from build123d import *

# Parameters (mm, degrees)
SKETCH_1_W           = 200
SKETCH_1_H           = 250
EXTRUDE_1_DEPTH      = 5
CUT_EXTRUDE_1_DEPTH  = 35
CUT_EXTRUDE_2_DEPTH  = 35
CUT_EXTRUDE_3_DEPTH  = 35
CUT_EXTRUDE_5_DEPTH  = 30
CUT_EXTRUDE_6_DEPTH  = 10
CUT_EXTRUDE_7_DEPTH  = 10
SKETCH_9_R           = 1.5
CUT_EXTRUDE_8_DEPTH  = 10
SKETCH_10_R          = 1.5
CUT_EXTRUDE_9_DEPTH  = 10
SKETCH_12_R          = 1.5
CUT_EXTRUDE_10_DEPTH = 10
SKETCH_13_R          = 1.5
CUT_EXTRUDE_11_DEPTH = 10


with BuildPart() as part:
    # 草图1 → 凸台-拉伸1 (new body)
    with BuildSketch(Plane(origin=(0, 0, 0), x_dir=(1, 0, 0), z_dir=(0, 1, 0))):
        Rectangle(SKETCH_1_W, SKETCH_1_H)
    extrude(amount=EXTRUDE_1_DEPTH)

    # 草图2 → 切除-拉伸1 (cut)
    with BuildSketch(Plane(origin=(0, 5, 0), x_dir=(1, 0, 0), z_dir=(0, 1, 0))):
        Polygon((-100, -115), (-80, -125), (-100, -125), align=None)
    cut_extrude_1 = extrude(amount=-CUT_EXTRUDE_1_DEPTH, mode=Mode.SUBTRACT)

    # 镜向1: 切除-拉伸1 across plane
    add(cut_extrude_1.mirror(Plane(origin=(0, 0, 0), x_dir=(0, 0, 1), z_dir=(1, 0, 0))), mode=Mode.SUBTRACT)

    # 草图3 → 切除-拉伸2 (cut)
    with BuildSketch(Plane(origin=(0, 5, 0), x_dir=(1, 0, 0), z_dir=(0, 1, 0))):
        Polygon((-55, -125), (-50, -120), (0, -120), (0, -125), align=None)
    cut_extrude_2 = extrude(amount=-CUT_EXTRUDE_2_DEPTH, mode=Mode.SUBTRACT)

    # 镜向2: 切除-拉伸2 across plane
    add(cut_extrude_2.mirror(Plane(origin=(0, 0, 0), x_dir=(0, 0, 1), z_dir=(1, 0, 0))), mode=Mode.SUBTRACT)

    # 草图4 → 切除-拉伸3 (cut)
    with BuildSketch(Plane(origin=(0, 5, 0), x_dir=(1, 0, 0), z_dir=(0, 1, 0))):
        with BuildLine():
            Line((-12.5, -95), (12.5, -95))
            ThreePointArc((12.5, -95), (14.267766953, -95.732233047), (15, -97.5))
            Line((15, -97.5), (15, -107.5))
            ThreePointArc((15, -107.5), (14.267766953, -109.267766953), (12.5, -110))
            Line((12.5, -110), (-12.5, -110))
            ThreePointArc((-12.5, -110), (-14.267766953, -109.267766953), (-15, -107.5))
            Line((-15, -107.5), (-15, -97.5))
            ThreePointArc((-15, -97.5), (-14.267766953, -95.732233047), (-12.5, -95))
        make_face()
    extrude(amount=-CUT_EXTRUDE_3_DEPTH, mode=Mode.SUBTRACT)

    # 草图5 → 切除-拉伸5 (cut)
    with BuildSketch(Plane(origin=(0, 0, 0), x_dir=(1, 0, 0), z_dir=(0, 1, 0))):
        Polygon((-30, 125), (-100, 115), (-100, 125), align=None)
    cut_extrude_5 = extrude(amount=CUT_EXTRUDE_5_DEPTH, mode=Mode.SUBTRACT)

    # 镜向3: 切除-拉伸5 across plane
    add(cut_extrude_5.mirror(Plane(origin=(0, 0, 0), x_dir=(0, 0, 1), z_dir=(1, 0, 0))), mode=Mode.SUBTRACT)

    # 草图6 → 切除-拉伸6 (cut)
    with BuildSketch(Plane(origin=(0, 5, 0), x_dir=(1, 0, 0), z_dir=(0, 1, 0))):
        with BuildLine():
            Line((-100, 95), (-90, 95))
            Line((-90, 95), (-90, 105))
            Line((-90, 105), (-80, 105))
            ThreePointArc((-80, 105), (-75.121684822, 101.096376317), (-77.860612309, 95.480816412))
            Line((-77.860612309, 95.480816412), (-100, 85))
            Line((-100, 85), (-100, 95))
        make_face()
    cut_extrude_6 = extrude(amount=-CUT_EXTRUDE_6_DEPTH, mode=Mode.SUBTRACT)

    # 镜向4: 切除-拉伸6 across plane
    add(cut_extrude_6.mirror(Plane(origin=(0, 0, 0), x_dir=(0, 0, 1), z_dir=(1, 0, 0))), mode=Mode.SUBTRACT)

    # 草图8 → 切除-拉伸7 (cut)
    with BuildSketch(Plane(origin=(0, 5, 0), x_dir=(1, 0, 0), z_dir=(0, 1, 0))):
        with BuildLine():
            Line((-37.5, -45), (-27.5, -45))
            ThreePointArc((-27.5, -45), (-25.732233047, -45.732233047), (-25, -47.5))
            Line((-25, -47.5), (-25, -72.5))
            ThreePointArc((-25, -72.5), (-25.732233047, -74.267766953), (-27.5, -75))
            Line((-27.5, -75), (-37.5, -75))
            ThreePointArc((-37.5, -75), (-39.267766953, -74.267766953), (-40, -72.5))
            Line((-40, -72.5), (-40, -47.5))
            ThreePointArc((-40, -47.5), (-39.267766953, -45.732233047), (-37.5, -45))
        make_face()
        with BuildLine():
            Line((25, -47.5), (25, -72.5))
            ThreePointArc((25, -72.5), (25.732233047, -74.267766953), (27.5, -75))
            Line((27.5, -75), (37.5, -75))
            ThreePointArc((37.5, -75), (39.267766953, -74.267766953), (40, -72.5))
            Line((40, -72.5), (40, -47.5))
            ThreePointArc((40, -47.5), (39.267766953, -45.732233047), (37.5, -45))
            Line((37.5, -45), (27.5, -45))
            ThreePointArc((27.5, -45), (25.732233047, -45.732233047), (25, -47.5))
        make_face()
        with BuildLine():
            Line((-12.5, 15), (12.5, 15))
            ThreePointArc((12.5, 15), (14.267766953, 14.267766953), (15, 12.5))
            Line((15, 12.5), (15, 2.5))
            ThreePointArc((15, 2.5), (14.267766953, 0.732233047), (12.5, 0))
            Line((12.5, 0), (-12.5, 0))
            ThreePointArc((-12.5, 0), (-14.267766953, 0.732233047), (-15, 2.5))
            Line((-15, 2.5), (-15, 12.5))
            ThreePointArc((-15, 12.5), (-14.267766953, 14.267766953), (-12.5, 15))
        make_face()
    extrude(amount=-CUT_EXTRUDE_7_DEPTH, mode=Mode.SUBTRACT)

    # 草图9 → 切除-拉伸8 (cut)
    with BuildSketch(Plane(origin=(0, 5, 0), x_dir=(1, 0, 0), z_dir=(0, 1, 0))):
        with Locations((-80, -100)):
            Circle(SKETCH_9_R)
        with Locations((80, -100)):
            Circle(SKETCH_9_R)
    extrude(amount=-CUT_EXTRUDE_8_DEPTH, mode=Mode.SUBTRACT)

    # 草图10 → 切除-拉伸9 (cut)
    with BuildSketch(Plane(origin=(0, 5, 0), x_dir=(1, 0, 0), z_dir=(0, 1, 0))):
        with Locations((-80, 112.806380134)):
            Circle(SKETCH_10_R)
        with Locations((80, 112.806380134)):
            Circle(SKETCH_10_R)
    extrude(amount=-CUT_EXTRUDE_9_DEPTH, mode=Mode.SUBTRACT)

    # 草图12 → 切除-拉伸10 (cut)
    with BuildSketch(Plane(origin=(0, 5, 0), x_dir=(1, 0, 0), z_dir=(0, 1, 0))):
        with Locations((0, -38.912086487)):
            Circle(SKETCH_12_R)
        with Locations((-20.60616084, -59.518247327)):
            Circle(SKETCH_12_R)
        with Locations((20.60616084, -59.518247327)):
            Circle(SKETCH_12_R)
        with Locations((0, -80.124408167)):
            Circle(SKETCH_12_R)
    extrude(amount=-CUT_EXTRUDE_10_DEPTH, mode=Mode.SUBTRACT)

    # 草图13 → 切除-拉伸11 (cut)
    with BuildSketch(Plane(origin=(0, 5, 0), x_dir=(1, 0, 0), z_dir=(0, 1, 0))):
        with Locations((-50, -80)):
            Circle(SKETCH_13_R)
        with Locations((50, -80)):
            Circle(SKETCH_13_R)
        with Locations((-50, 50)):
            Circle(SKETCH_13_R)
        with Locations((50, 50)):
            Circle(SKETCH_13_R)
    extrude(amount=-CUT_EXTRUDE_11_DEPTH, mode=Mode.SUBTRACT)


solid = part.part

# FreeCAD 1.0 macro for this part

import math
import FreeCAD as App
import Part
import Sketcher
from FreeCAD import Vector

doc = App.newDocument("Part")
params = doc.addObject("Spreadsheet::Sheet", "Params")
for row, (alias, value) in enumerate([
    ("sketch1_width", "200 mm"),
    ("sketch1_height", "250 mm"),
    ("pad1_length", "5 mm"),
    ("sketch2_width", "20 mm"),
    ("sketch2_height", "10 mm"),
    ("pocket1_length", "35 mm"),
    ("sketch3_width", "55 mm"),
    ("sketch3_width2", "50 mm"),
    ("sketch3_height", "5 mm"),
    ("pocket2_length", "35 mm"),
    ("sketch4_radius", "2.5 mm"),
    ("sketch4_width", "25 mm"),
    ("sketch4_height", "10 mm"),
    ("pocket3_length", "35 mm"),
    ("sketch5_width", "70 mm"),
    ("sketch5_height", "10 mm"),
    ("pocket4_length", "30 mm"),
    ("sketch6_radius", "5 mm"),
    ("sketch6_width", "10 mm"),
    ("pocket5_length", "10 mm"),
    ("sketch7_radius", "2.5 mm"),
    ("sketch7_width", "10 mm"),
    ("sketch7_width2", "25 mm"),
    ("pocket6_length", "10 mm"),
    ("sketch8_diameter", "3 mm"),
    ("pocket7_length", "10 mm"),
    ("sketch9_diameter", "3 mm"),
    ("pocket8_length", "10 mm"),
    ("sketch10_diameter", "3 mm"),
    ("pocket9_length", "10 mm"),
    ("sketch11_diameter", "3 mm"),
    ("pocket10_length", "10 mm"),
], start=1):
    params.set(f"A{row}", alias)
    params.set(f"B{row}", "=" + value)
    params.setAlias(f"B{row}", alias)

body = doc.addObject("PartDesign::Body", "Body")

sketch1 = body.newObject("Sketcher::SketchObject", "Sketch")
sketch1.AttachmentSupport = (doc.getObject("XZ_Plane"), [""])
sketch1.MapMode = "FlatFace"
sketch1.addGeometry(Part.LineSegment(Vector(-100, -125, 0), Vector(-100, 125, 0)), False)
sketch1.addGeometry(Part.LineSegment(Vector(-100, 125, 0), Vector(100, 125, 0)), False)
sketch1.addGeometry(Part.LineSegment(Vector(100, 125, 0), Vector(100, -125, 0)), False)
sketch1.addGeometry(Part.LineSegment(Vector(100, -125, 0), Vector(-100, -125, 0)), False)
sketch1.addConstraint(Sketcher.Constraint("Coincident", 0, 2, 1, 1))
sketch1.addConstraint(Sketcher.Constraint("Coincident", 1, 2, 2, 1))
sketch1.addConstraint(Sketcher.Constraint("Coincident", 2, 2, 3, 1))
sketch1.addConstraint(Sketcher.Constraint("Coincident", 3, 2, 0, 1))
sketch1.addConstraint(Sketcher.Constraint("Vertical", 0))
sketch1.addConstraint(Sketcher.Constraint("Horizontal", 1))
sketch1.addConstraint(Sketcher.Constraint("Vertical", 2))
sketch1.addConstraint(Sketcher.Constraint("Horizontal", 3))
sketch1.addConstraint(Sketcher.Constraint("Symmetric", 0, 2, 2, 2, -1, 1))
sketch1.addConstraint(Sketcher.Constraint("DistanceX", 1, 1, 1, 2, 200.0))
sketch1.addConstraint(Sketcher.Constraint("DistanceY", 0, 1, 0, 2, 250.0))
sketch1.setExpression("Constraints[9]", "Params.sketch1_width")
sketch1.setExpression("Constraints[10]", "Params.sketch1_height")
pad1 = body.newObject("PartDesign::Pad", "Pad")
pad1.Profile = sketch1
pad1.setExpression("Length", "Params.pad1_length")
pad1.Reversed = True

sketch2 = body.newObject("Sketcher::SketchObject", "Sketch001")
sketch2.AttachmentSupport = (doc.getObject("XZ_Plane"), [""])
sketch2.MapMode = "FlatFace"
sketch2.AttachmentOffset = App.Placement(Vector(0, 0, -5), App.Rotation())
sketch2.addGeometry(Part.LineSegment(Vector(-80, 125, 0), Vector(-100, 115, 0)), False)
sketch2.addGeometry(Part.LineSegment(Vector(-100, 115, 0), Vector(-100, 125, 0)), False)
sketch2.addGeometry(Part.LineSegment(Vector(-100, 125, 0), Vector(-80, 125, 0)), False)
sketch2.addConstraint(Sketcher.Constraint("Coincident", 0, 2, 1, 1))
sketch2.addConstraint(Sketcher.Constraint("Coincident", 1, 2, 2, 1))
sketch2.addConstraint(Sketcher.Constraint("Coincident", 2, 2, 0, 1))
sketch2.addConstraint(Sketcher.Constraint("Vertical", 1))
sketch2.addConstraint(Sketcher.Constraint("Horizontal", 2))
sketch2.addConstraint(Sketcher.Constraint("DistanceX", 2, 1, 2, 2, 20.0))
sketch2.addConstraint(Sketcher.Constraint("DistanceY", 1, 1, 1, 2, 10.0))
sketch2.addConstraint(Sketcher.Constraint("DistanceX", 0, 2, -1, 1, 100.0))
sketch2.addConstraint(Sketcher.Constraint("DistanceY", -1, 1, 0, 2, 115.0))
sketch2.setExpression("Constraints[5]", "Params.sketch2_width")
sketch2.setExpression("Constraints[6]", "Params.sketch2_height")
pocket1 = body.newObject("PartDesign::Pocket", "Pocket")
pocket1.Profile = sketch2
pocket1.setExpression("Length", "Params.pocket1_length")
pocket1.Reversed = True
doc.recompute()

mirrored = body.newObject("PartDesign::Mirrored", "Mirrored")
mirrored.Originals = [pocket1]
mirrored.MirrorPlane = (doc.getObject("YZ_Plane"), [""])
body.Tip = mirrored

sketch3 = body.newObject("Sketcher::SketchObject", "Sketch002")
sketch3.AttachmentSupport = (doc.getObject("XZ_Plane"), [""])
sketch3.MapMode = "FlatFace"
sketch3.AttachmentOffset = App.Placement(Vector(0, 0, -5), App.Rotation())
sketch3.addGeometry(Part.LineSegment(Vector(-50, 120, 0), Vector(-55, 125, 0)), False)
sketch3.addGeometry(Part.LineSegment(Vector(-55, 125, 0), Vector(0, 125, 0)), False)
sketch3.addGeometry(Part.LineSegment(Vector(0, 125, 0), Vector(0, 120, 0)), False)
sketch3.addGeometry(Part.LineSegment(Vector(0, 120, 0), Vector(-50, 120, 0)), False)
sketch3.addConstraint(Sketcher.Constraint("Coincident", 0, 2, 1, 1))
sketch3.addConstraint(Sketcher.Constraint("Coincident", 1, 2, 2, 1))
sketch3.addConstraint(Sketcher.Constraint("Coincident", 2, 2, 3, 1))
sketch3.addConstraint(Sketcher.Constraint("Coincident", 3, 2, 0, 1))
sketch3.addConstraint(Sketcher.Constraint("Horizontal", 1))
sketch3.addConstraint(Sketcher.Constraint("Vertical", 2))
sketch3.addConstraint(Sketcher.Constraint("Horizontal", 3))
sketch3.addConstraint(Sketcher.Constraint("PointOnObject", 1, 2, -2))
sketch3.addConstraint(Sketcher.Constraint("DistanceX", 1, 1, 1, 2, 55.0))
sketch3.addConstraint(Sketcher.Constraint("DistanceX", 3, 2, 3, 1, 50.0))
sketch3.addConstraint(Sketcher.Constraint("DistanceY", 2, 2, 2, 1, 5.0))
sketch3.addConstraint(Sketcher.Constraint("DistanceY", -1, 1, 0, 2, 125.0))
sketch3.setExpression("Constraints[8]", "Params.sketch3_width")
sketch3.setExpression("Constraints[9]", "Params.sketch3_width2")
sketch3.setExpression("Constraints[10]", "Params.sketch3_height")
pocket2 = body.newObject("PartDesign::Pocket", "Pocket001")
pocket2.Profile = sketch3
pocket2.setExpression("Length", "Params.pocket2_length")
pocket2.Reversed = True
doc.recompute()

mirrored2 = body.newObject("PartDesign::Mirrored", "Mirrored001")
mirrored2.Originals = [pocket2]
mirrored2.MirrorPlane = (doc.getObject("YZ_Plane"), [""])
body.Tip = mirrored2

sketch4 = body.newObject("Sketcher::SketchObject", "Sketch003")
sketch4.AttachmentSupport = (doc.getObject("XZ_Plane"), [""])
sketch4.MapMode = "FlatFace"
sketch4.AttachmentOffset = App.Placement(Vector(0, 0, -5), App.Rotation())
sketch4.addGeometry(Part.LineSegment(Vector(12.5, 95, 0), Vector(-12.5, 95, 0)), False)
sketch4.addGeometry(Part.ArcOfCircle(Part.Circle(Vector(-12.5, 97.5, 0), Vector(0, 0, 1), 2.5), math.radians(180), math.radians(270)), False)
sketch4.addGeometry(Part.LineSegment(Vector(-15, 97.5, 0), Vector(-15, 107.5, 0)), False)
sketch4.addGeometry(Part.ArcOfCircle(Part.Circle(Vector(-12.5, 107.5, 0), Vector(0, 0, 1), 2.5), math.radians(90), math.radians(180)), False)
sketch4.addGeometry(Part.LineSegment(Vector(-12.5, 110, 0), Vector(12.5, 110, 0)), False)
sketch4.addGeometry(Part.ArcOfCircle(Part.Circle(Vector(12.5, 107.5, 0), Vector(0, 0, 1), 2.5), math.radians(0), math.radians(90)), False)
sketch4.addGeometry(Part.LineSegment(Vector(15, 107.5, 0), Vector(15, 97.5, 0)), False)
sketch4.addGeometry(Part.ArcOfCircle(Part.Circle(Vector(12.5, 97.5, 0), Vector(0, 0, 1), 2.5), math.radians(-90), math.radians(0)), False)
sketch4.addConstraint(Sketcher.Constraint("Tangent", 0, 2, 1, 2))
sketch4.addConstraint(Sketcher.Constraint("Tangent", 1, 1, 2, 1))
sketch4.addConstraint(Sketcher.Constraint("Tangent", 2, 2, 3, 2))
sketch4.addConstraint(Sketcher.Constraint("Tangent", 3, 1, 4, 1))
sketch4.addConstraint(Sketcher.Constraint("Tangent", 4, 2, 5, 2))
sketch4.addConstraint(Sketcher.Constraint("Tangent", 5, 1, 6, 1))
sketch4.addConstraint(Sketcher.Constraint("Tangent", 6, 2, 7, 2))
sketch4.addConstraint(Sketcher.Constraint("Tangent", 7, 1, 0, 1))
sketch4.addConstraint(Sketcher.Constraint("Horizontal", 0))
sketch4.addConstraint(Sketcher.Constraint("Vertical", 2))
sketch4.addConstraint(Sketcher.Constraint("Horizontal", 4))
sketch4.addConstraint(Sketcher.Constraint("Vertical", 6))
sketch4.addConstraint(Sketcher.Constraint("Equal", 1, 3))
sketch4.addConstraint(Sketcher.Constraint("Equal", 3, 5))
sketch4.addConstraint(Sketcher.Constraint("Equal", 5, 7))
sketch4.addConstraint(Sketcher.Constraint("Radius", 1, 2.5))
sketch4.addConstraint(Sketcher.Constraint("DistanceX", 0, 2, 0, 1, 25.0))
sketch4.addConstraint(Sketcher.Constraint("DistanceY", 2, 1, 2, 2, 10.0))
sketch4.addConstraint(Sketcher.Constraint("DistanceY", -1, 1, 0, 2, 95.0))
sketch4.addConstraint(Sketcher.Constraint("DistanceX", 1, 1, -1, 1, 15.0))
sketch4.setExpression("Constraints[15]", "Params.sketch4_radius")
sketch4.setExpression("Constraints[16]", "Params.sketch4_width")
sketch4.setExpression("Constraints[17]", "Params.sketch4_height")
pocket3 = body.newObject("PartDesign::Pocket", "Pocket002")
pocket3.Profile = sketch4
pocket3.setExpression("Length", "Params.pocket3_length")
pocket3.Reversed = True

sketch5 = body.newObject("Sketcher::SketchObject", "Sketch004")
sketch5.AttachmentSupport = (doc.getObject("XZ_Plane"), [""])
sketch5.MapMode = "FlatFace"
sketch5.addGeometry(Part.LineSegment(Vector(-100, -115, 0), Vector(-30, -125, 0)), False)
sketch5.addGeometry(Part.LineSegment(Vector(-30, -125, 0), Vector(-100, -125, 0)), False)
sketch5.addGeometry(Part.LineSegment(Vector(-100, -125, 0), Vector(-100, -115, 0)), False)
sketch5.addConstraint(Sketcher.Constraint("Coincident", 0, 2, 1, 1))
sketch5.addConstraint(Sketcher.Constraint("Coincident", 1, 2, 2, 1))
sketch5.addConstraint(Sketcher.Constraint("Coincident", 2, 2, 0, 1))
sketch5.addConstraint(Sketcher.Constraint("Horizontal", 1))
sketch5.addConstraint(Sketcher.Constraint("Vertical", 2))
sketch5.addConstraint(Sketcher.Constraint("DistanceX", 1, 2, 1, 1, 70.0))
sketch5.addConstraint(Sketcher.Constraint("DistanceY", 2, 1, 2, 2, 10.0))
sketch5.addConstraint(Sketcher.Constraint("DistanceX", 0, 2, -1, 1, 30.0))
sketch5.addConstraint(Sketcher.Constraint("DistanceY", 0, 2, -1, 1, 125.0))
sketch5.setExpression("Constraints[5]", "Params.sketch5_width")
sketch5.setExpression("Constraints[6]", "Params.sketch5_height")
pocket4 = body.newObject("PartDesign::Pocket", "Pocket003")
pocket4.Profile = sketch5
pocket4.setExpression("Length", "Params.pocket4_length")
doc.recompute()

mirrored3 = body.newObject("PartDesign::Mirrored", "Mirrored002")
mirrored3.Originals = [pocket4]
mirrored3.MirrorPlane = (doc.getObject("YZ_Plane"), [""])
body.Tip = mirrored3

sketch6 = body.newObject("Sketcher::SketchObject", "Sketch005")
sketch6.AttachmentSupport = (doc.getObject("XZ_Plane"), [""])
sketch6.MapMode = "FlatFace"
sketch6.AttachmentOffset = App.Placement(Vector(0, 0, -5), App.Rotation())
sketch6.addGeometry(Part.LineSegment(Vector(-90, -95, 0), Vector(-100, -95, 0)), False)
sketch6.addGeometry(Part.LineSegment(Vector(-100, -95, 0), Vector(-100, -85, 0)), False)
sketch6.addGeometry(Part.LineSegment(Vector(-100, -85, 0), Vector(-78, -95, 0)), False)
sketch6.addGeometry(Part.ArcOfCircle(Part.Circle(Vector(-80, -100, 0), Vector(0, 0, 1), 5), math.radians(-90), math.radians(65)), False)
sketch6.addGeometry(Part.LineSegment(Vector(-80, -105, 0), Vector(-90, -105, 0)), False)
sketch6.addGeometry(Part.LineSegment(Vector(-90, -105, 0), Vector(-90, -95, 0)), False)
sketch6.addConstraint(Sketcher.Constraint("Coincident", 0, 2, 1, 1))
sketch6.addConstraint(Sketcher.Constraint("Coincident", 1, 2, 2, 1))
sketch6.addConstraint(Sketcher.Constraint("Tangent", 2, 2, 3, 2))
sketch6.addConstraint(Sketcher.Constraint("Tangent", 3, 1, 4, 1))
sketch6.addConstraint(Sketcher.Constraint("Coincident", 4, 2, 5, 1))
sketch6.addConstraint(Sketcher.Constraint("Coincident", 5, 2, 0, 1))
sketch6.addConstraint(Sketcher.Constraint("Horizontal", 0))
sketch6.addConstraint(Sketcher.Constraint("Vertical", 1))
sketch6.addConstraint(Sketcher.Constraint("Horizontal", 4))
sketch6.addConstraint(Sketcher.Constraint("Vertical", 5))
sketch6.addConstraint(Sketcher.Constraint("Equal", 0, 4))
sketch6.addConstraint(Sketcher.Constraint("Equal", 4, 1))
sketch6.addConstraint(Sketcher.Constraint("Equal", 1, 5))
sketch6.addConstraint(Sketcher.Constraint("Radius", 3, 5.0))
sketch6.addConstraint(Sketcher.Constraint("DistanceX", 0, 2, 0, 1, 10.0))
sketch6.addConstraint(Sketcher.Constraint("DistanceX", 3, 3, -1, 1, 80.0))
sketch6.addConstraint(Sketcher.Constraint("DistanceY", 3, 3, -1, 1, 100.0))
sketch6.setExpression("Constraints[13]", "Params.sketch6_radius")
sketch6.setExpression("Constraints[14]", "Params.sketch6_width")
pocket5 = body.newObject("PartDesign::Pocket", "Pocket004")
pocket5.Profile = sketch6
pocket5.setExpression("Length", "Params.pocket5_length")
pocket5.Reversed = True
doc.recompute()

mirrored4 = body.newObject("PartDesign::Mirrored", "Mirrored003")
mirrored4.Originals = [pocket5]
mirrored4.MirrorPlane = (doc.getObject("YZ_Plane"), [""])
body.Tip = mirrored4

sketch7 = body.newObject("Sketcher::SketchObject", "Sketch006")
sketch7.AttachmentSupport = (doc.getObject("XZ_Plane"), [""])
sketch7.MapMode = "FlatFace"
sketch7.AttachmentOffset = App.Placement(Vector(0, 0, -5), App.Rotation())
sketch7.addGeometry(Part.LineSegment(Vector(-27.5, 45, 0), Vector(-37.5, 45, 0)), False)
sketch7.addGeometry(Part.ArcOfCircle(Part.Circle(Vector(-37.5, 47.5, 0), Vector(0, 0, 1), 2.5), math.radians(180), math.radians(270)), False)
sketch7.addGeometry(Part.LineSegment(Vector(-40, 47.5, 0), Vector(-40, 72.5, 0)), False)
sketch7.addGeometry(Part.ArcOfCircle(Part.Circle(Vector(-37.5, 72.5, 0), Vector(0, 0, 1), 2.5), math.radians(90), math.radians(180)), False)
sketch7.addGeometry(Part.LineSegment(Vector(-37.5, 75, 0), Vector(-27.5, 75, 0)), False)
sketch7.addGeometry(Part.ArcOfCircle(Part.Circle(Vector(-27.5, 72.5, 0), Vector(0, 0, 1), 2.5), math.radians(0), math.radians(90)), False)
sketch7.addGeometry(Part.LineSegment(Vector(-25, 72.5, 0), Vector(-25, 47.5, 0)), False)
sketch7.addGeometry(Part.ArcOfCircle(Part.Circle(Vector(-27.5, 47.5, 0), Vector(0, 0, 1), 2.5), math.radians(-90), math.radians(0)), False)
sketch7.addGeometry(Part.LineSegment(Vector(25, 47.5, 0), Vector(25, 72.5, 0)), False)
sketch7.addGeometry(Part.ArcOfCircle(Part.Circle(Vector(27.5, 72.5, 0), Vector(0, 0, 1), 2.5), math.radians(90), math.radians(180)), False)
sketch7.addGeometry(Part.LineSegment(Vector(27.5, 75, 0), Vector(37.5, 75, 0)), False)
sketch7.addGeometry(Part.ArcOfCircle(Part.Circle(Vector(37.5, 72.5, 0), Vector(0, 0, 1), 2.5), math.radians(0), math.radians(90)), False)
sketch7.addGeometry(Part.LineSegment(Vector(40, 72.5, 0), Vector(40, 47.5, 0)), False)
sketch7.addGeometry(Part.ArcOfCircle(Part.Circle(Vector(37.5, 47.5, 0), Vector(0, 0, 1), 2.5), math.radians(-90), math.radians(0)), False)
sketch7.addGeometry(Part.LineSegment(Vector(37.5, 45, 0), Vector(27.5, 45, 0)), False)
sketch7.addGeometry(Part.ArcOfCircle(Part.Circle(Vector(27.5, 47.5, 0), Vector(0, 0, 1), 2.5), math.radians(180), math.radians(270)), False)
sketch7.addGeometry(Part.LineSegment(Vector(12.5, -15, 0), Vector(-12.5, -15, 0)), False)
sketch7.addGeometry(Part.ArcOfCircle(Part.Circle(Vector(-12.5, -12.5, 0), Vector(0, 0, 1), 2.5), math.radians(180), math.radians(270)), False)
sketch7.addGeometry(Part.LineSegment(Vector(-15, -12.5, 0), Vector(-15, -2.5, 0)), False)
sketch7.addGeometry(Part.ArcOfCircle(Part.Circle(Vector(-12.5, -2.5, 0), Vector(0, 0, 1), 2.5), math.radians(90), math.radians(180)), False)
sketch7.addGeometry(Part.LineSegment(Vector(-12.5, 0, 0), Vector(12.5, 0, 0)), False)
sketch7.addGeometry(Part.ArcOfCircle(Part.Circle(Vector(12.5, -2.5, 0), Vector(0, 0, 1), 2.5), math.radians(0), math.radians(90)), False)
sketch7.addGeometry(Part.LineSegment(Vector(15, -2.5, 0), Vector(15, -12.5, 0)), False)
sketch7.addGeometry(Part.ArcOfCircle(Part.Circle(Vector(12.5, -12.5, 0), Vector(0, 0, 1), 2.5), math.radians(-90), math.radians(0)), False)
sketch7.addConstraint(Sketcher.Constraint("Tangent", 0, 2, 1, 2))
sketch7.addConstraint(Sketcher.Constraint("Tangent", 1, 1, 2, 1))
sketch7.addConstraint(Sketcher.Constraint("Tangent", 2, 2, 3, 2))
sketch7.addConstraint(Sketcher.Constraint("Tangent", 3, 1, 4, 1))
sketch7.addConstraint(Sketcher.Constraint("Tangent", 4, 2, 5, 2))
sketch7.addConstraint(Sketcher.Constraint("Tangent", 5, 1, 6, 1))
sketch7.addConstraint(Sketcher.Constraint("Tangent", 6, 2, 7, 2))
sketch7.addConstraint(Sketcher.Constraint("Tangent", 7, 1, 0, 1))
sketch7.addConstraint(Sketcher.Constraint("Tangent", 8, 2, 9, 2))
sketch7.addConstraint(Sketcher.Constraint("Tangent", 9, 1, 10, 1))
sketch7.addConstraint(Sketcher.Constraint("Tangent", 10, 2, 11, 2))
sketch7.addConstraint(Sketcher.Constraint("Tangent", 11, 1, 12, 1))
sketch7.addConstraint(Sketcher.Constraint("Tangent", 12, 2, 13, 2))
sketch7.addConstraint(Sketcher.Constraint("Tangent", 13, 1, 14, 1))
sketch7.addConstraint(Sketcher.Constraint("Tangent", 14, 2, 15, 2))
sketch7.addConstraint(Sketcher.Constraint("Tangent", 15, 1, 8, 1))
sketch7.addConstraint(Sketcher.Constraint("Tangent", 16, 2, 17, 2))
sketch7.addConstraint(Sketcher.Constraint("Tangent", 17, 1, 18, 1))
sketch7.addConstraint(Sketcher.Constraint("Tangent", 18, 2, 19, 2))
sketch7.addConstraint(Sketcher.Constraint("Tangent", 19, 1, 20, 1))
sketch7.addConstraint(Sketcher.Constraint("Tangent", 20, 2, 21, 2))
sketch7.addConstraint(Sketcher.Constraint("Tangent", 21, 1, 22, 1))
sketch7.addConstraint(Sketcher.Constraint("Tangent", 22, 2, 23, 2))
sketch7.addConstraint(Sketcher.Constraint("Tangent", 23, 1, 16, 1))
sketch7.addConstraint(Sketcher.Constraint("Horizontal", 0))
sketch7.addConstraint(Sketcher.Constraint("Vertical", 2))
sketch7.addConstraint(Sketcher.Constraint("Horizontal", 4))
sketch7.addConstraint(Sketcher.Constraint("Vertical", 6))
sketch7.addConstraint(Sketcher.Constraint("Vertical", 8))
sketch7.addConstraint(Sketcher.Constraint("Horizontal", 10))
sketch7.addConstraint(Sketcher.Constraint("Vertical", 12))
sketch7.addConstraint(Sketcher.Constraint("Horizontal", 14))
sketch7.addConstraint(Sketcher.Constraint("Horizontal", 16))
sketch7.addConstraint(Sketcher.Constraint("Vertical", 18))
sketch7.addConstraint(Sketcher.Constraint("Horizontal", 20))
sketch7.addConstraint(Sketcher.Constraint("Vertical", 22))
sketch7.addConstraint(Sketcher.Constraint("Equal", 1, 3))
sketch7.addConstraint(Sketcher.Constraint("Equal", 3, 5))
sketch7.addConstraint(Sketcher.Constraint("Equal", 5, 7))
sketch7.addConstraint(Sketcher.Constraint("Equal", 7, 9))
sketch7.addConstraint(Sketcher.Constraint("Equal", 9, 11))
sketch7.addConstraint(Sketcher.Constraint("Equal", 11, 13))
sketch7.addConstraint(Sketcher.Constraint("Equal", 13, 15))
sketch7.addConstraint(Sketcher.Constraint("Equal", 15, 17))
sketch7.addConstraint(Sketcher.Constraint("Equal", 17, 19))
sketch7.addConstraint(Sketcher.Constraint("Equal", 19, 21))
sketch7.addConstraint(Sketcher.Constraint("Equal", 21, 23))
sketch7.addConstraint(Sketcher.Constraint("Symmetric", 19, 1, 20, 2, -1, 1))
sketch7.addConstraint(Sketcher.Constraint("Symmetric", 5, 3, 9, 3, -2))
sketch7.addConstraint(Sketcher.Constraint("Symmetric", 1, 3, 13, 3, -2))
sketch7.addConstraint(Sketcher.Constraint("Equal", 20, 2))
sketch7.addConstraint(Sketcher.Constraint("Equal", 14, 18))
sketch7.addConstraint(Sketcher.Constraint("Radius", 1, 2.5))
sketch7.addConstraint(Sketcher.Constraint("DistanceX", 0, 2, 0, 1, 10.0))
sketch7.addConstraint(Sketcher.Constraint("DistanceX", 16, 2, 16, 1, 25.0))
sketch7.addConstraint(Sketcher.Constraint("DistanceY", -1, 1, 0, 2, 45.0))
sketch7.addConstraint(Sketcher.Constraint("DistanceX", 1, 1, -1, 1, 40.0))
sketch7.setExpression("Constraints[52]", "Params.sketch7_radius")
sketch7.setExpression("Constraints[53]", "Params.sketch7_width")
sketch7.setExpression("Constraints[54]", "Params.sketch7_width2")
pocket6 = body.newObject("PartDesign::Pocket", "Pocket005")
pocket6.Profile = sketch7
pocket6.setExpression("Length", "Params.pocket6_length")
pocket6.Reversed = True

sketch8 = body.newObject("Sketcher::SketchObject", "Sketch007")
sketch8.AttachmentSupport = (doc.getObject("XZ_Plane"), [""])
sketch8.MapMode = "FlatFace"
sketch8.AttachmentOffset = App.Placement(Vector(0, 0, -5), App.Rotation())
sketch8.addGeometry(Part.Circle(Vector(-80, 100, 0), Vector(0, 0, 1), 1.5), False)
sketch8.addGeometry(Part.Circle(Vector(80, 100, 0), Vector(0, 0, 1), 1.5), False)
sketch8.addConstraint(Sketcher.Constraint("Equal", 0, 1))
sketch8.addConstraint(Sketcher.Constraint("Symmetric", 0, 3, 1, 3, -2))
sketch8.addConstraint(Sketcher.Constraint("Diameter", 0, 3.0))
sketch8.addConstraint(Sketcher.Constraint("DistanceX", 0, 3, -1, 1, 80.0))
sketch8.addConstraint(Sketcher.Constraint("DistanceY", -1, 1, 0, 3, 100.0))
sketch8.setExpression("Constraints[2]", "Params.sketch8_diameter")
pocket7 = body.newObject("PartDesign::Pocket", "Pocket006")
pocket7.Profile = sketch8
pocket7.setExpression("Length", "Params.pocket7_length")
pocket7.Reversed = True

sketch9 = body.newObject("Sketcher::SketchObject", "Sketch008")
sketch9.AttachmentSupport = (doc.getObject("XZ_Plane"), [""])
sketch9.MapMode = "FlatFace"
sketch9.AttachmentOffset = App.Placement(Vector(0, 0, -5), App.Rotation())
sketch9.addGeometry(Part.Circle(Vector(-80, -112.8, 0), Vector(0, 0, 1), 1.5), False)
sketch9.addGeometry(Part.Circle(Vector(80, -112.8, 0), Vector(0, 0, 1), 1.5), False)
sketch9.addConstraint(Sketcher.Constraint("Equal", 0, 1))
sketch9.addConstraint(Sketcher.Constraint("Symmetric", 0, 3, 1, 3, -2))
sketch9.addConstraint(Sketcher.Constraint("Diameter", 0, 3.0))
sketch9.addConstraint(Sketcher.Constraint("DistanceX", 0, 3, -1, 1, 80.0))
sketch9.addConstraint(Sketcher.Constraint("DistanceY", 0, 3, -1, 1, 112.80638))
sketch9.setExpression("Constraints[2]", "Params.sketch9_diameter")
pocket8 = body.newObject("PartDesign::Pocket", "Pocket007")
pocket8.Profile = sketch9
pocket8.setExpression("Length", "Params.pocket8_length")
pocket8.Reversed = True

sketch10 = body.newObject("Sketcher::SketchObject", "Sketch009")
sketch10.AttachmentSupport = (doc.getObject("XZ_Plane"), [""])
sketch10.MapMode = "FlatFace"
sketch10.AttachmentOffset = App.Placement(Vector(0, 0, -5), App.Rotation())
sketch10.addGeometry(Part.Circle(Vector(0, 38.9, 0), Vector(0, 0, 1), 1.5), False)
sketch10.addGeometry(Part.Circle(Vector(-20.6, 59.5, 0), Vector(0, 0, 1), 1.5), False)
sketch10.addGeometry(Part.Circle(Vector(20.6, 59.5, 0), Vector(0, 0, 1), 1.5), False)
sketch10.addGeometry(Part.Circle(Vector(0, 80.1, 0), Vector(0, 0, 1), 1.5), False)
sketch10.addConstraint(Sketcher.Constraint("Equal", 0, 1))
sketch10.addConstraint(Sketcher.Constraint("Equal", 1, 2))
sketch10.addConstraint(Sketcher.Constraint("Equal", 2, 3))
sketch10.addConstraint(Sketcher.Constraint("Symmetric", 1, 3, 2, 3, -2))
sketch10.addConstraint(Sketcher.Constraint("PointOnObject", 0, 3, -2))
sketch10.addConstraint(Sketcher.Constraint("PointOnObject", 3, 3, -2))
sketch10.addConstraint(Sketcher.Constraint("Diameter", 0, 3.0))
sketch10.addConstraint(Sketcher.Constraint("DistanceX", 1, 3, -1, 1, 20.606161))
sketch10.addConstraint(Sketcher.Constraint("DistanceY", -1, 1, 3, 3, 80.124408))
sketch10.addConstraint(Sketcher.Constraint("DistanceY", 0, 3, 1, 3, 20.606161))
sketch10.addConstraint(Sketcher.Constraint("DistanceY", 1, 3, 3, 3, 20.606161))
sketch10.setExpression("Constraints[6]", "Params.sketch10_diameter")
pocket9 = body.newObject("PartDesign::Pocket", "Pocket008")
pocket9.Profile = sketch10
pocket9.setExpression("Length", "Params.pocket9_length")
pocket9.Reversed = True

sketch11 = body.newObject("Sketcher::SketchObject", "Sketch010")
sketch11.AttachmentSupport = (doc.getObject("XZ_Plane"), [""])
sketch11.MapMode = "FlatFace"
sketch11.AttachmentOffset = App.Placement(Vector(0, 0, -5), App.Rotation())
sketch11.addGeometry(Part.Circle(Vector(-50, 80, 0), Vector(0, 0, 1), 1.5), False)
sketch11.addGeometry(Part.Circle(Vector(50, 80, 0), Vector(0, 0, 1), 1.5), False)
sketch11.addGeometry(Part.Circle(Vector(-50, -50, 0), Vector(0, 0, 1), 1.5), False)
sketch11.addGeometry(Part.Circle(Vector(50, -50, 0), Vector(0, 0, 1), 1.5), False)
sketch11.addConstraint(Sketcher.Constraint("Equal", 0, 1))
sketch11.addConstraint(Sketcher.Constraint("Equal", 1, 2))
sketch11.addConstraint(Sketcher.Constraint("Equal", 2, 3))
sketch11.addConstraint(Sketcher.Constraint("Symmetric", 0, 3, 1, 3, -2))
sketch11.addConstraint(Sketcher.Constraint("Symmetric", 2, 3, 3, 3, -2))
sketch11.addConstraint(Sketcher.Constraint("Vertical", 0, 3, 2, 3))
sketch11.addConstraint(Sketcher.Constraint("Diameter", 0, 3.0))
sketch11.addConstraint(Sketcher.Constraint("DistanceX", 0, 3, -1, 1, 50.0))
sketch11.addConstraint(Sketcher.Constraint("DistanceY", -1, 1, 0, 3, 80.0))
sketch11.addConstraint(Sketcher.Constraint("DistanceY", 2, 3, -1, 1, 50.0))
sketch11.setExpression("Constraints[6]", "Params.sketch11_diameter")
pocket10 = body.newObject("PartDesign::Pocket", "Pocket009")
pocket10.Profile = sketch11
pocket10.setExpression("Length", "Params.pocket10_length")
pocket10.Reversed = True

doc.recompute()
